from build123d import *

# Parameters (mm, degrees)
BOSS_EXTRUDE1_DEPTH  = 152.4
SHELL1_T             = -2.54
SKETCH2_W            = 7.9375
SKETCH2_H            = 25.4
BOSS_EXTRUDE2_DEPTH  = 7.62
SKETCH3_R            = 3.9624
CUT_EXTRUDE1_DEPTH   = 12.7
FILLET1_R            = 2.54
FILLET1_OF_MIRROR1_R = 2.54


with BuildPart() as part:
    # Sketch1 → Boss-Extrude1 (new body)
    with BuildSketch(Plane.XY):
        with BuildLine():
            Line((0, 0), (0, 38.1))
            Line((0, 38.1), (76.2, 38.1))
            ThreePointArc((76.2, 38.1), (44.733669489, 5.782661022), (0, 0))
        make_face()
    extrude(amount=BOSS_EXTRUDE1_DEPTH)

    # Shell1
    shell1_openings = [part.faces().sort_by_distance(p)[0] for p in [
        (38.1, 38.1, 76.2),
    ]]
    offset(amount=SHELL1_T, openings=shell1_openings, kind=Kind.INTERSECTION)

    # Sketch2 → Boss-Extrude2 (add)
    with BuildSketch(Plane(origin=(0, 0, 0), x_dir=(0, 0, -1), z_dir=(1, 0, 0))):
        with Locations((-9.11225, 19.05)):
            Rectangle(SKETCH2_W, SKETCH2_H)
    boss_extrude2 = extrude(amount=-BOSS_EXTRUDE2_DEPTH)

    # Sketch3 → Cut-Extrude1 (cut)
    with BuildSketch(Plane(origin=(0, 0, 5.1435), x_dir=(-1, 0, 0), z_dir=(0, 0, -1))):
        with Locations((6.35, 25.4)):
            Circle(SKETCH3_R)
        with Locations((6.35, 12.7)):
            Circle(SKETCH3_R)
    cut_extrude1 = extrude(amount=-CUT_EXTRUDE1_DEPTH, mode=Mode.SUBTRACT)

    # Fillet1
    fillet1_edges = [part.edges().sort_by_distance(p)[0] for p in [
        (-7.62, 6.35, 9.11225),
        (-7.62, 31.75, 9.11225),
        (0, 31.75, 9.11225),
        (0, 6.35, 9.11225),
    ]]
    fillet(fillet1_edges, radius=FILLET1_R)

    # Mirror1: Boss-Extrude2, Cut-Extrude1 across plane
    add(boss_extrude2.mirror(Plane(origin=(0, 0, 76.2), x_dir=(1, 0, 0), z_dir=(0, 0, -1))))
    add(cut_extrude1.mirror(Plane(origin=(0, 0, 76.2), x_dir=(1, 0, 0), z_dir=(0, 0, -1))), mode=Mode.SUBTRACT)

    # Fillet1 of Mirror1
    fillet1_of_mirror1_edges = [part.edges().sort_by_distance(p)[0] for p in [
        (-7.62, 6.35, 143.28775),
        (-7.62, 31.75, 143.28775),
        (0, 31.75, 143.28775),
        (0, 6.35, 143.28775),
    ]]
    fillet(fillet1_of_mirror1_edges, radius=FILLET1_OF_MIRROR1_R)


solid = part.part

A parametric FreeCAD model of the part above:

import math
import FreeCAD as App
import Part
import Sketcher

V = App.Vector
Q = App.Units.Quantity


def edges_at(feature, points):
    """Names of the edges that pass closest to the given points."""
    edges = feature.Shape.Edges
    near = lambda p: min(range(len(edges)), key=lambda i: edges[i].distToShape(Part.Vertex(*p))[0])
    return sorted({f"Edge{near(p) + 1}" for p in points})


def faces_at(feature, points):
    """Names of the faces that lie closest to the given points."""
    faces = feature.Shape.Faces
    near = lambda p: min(range(len(faces)), key=lambda i: faces[i].distToShape(Part.Vertex(*p))[0])
    return sorted({f"Face{near(p) + 1}" for p in points})


def add_polygon(sketch, points):
    """Adds a closed chain of lines whose ends are joined by coincident constraints."""
    first, n = sketch.GeometryCount, len(points)
    for a, b in zip(points, points[1:] + points[:1]):
        sketch.addGeometry(Part.LineSegment(App.Vector(*a, 0), App.Vector(*b, 0)), False)
    for i in range(n):
        sketch.addConstraint(Sketcher.Constraint("Coincident", first + i, 2, first + (i + 1) % n, 1))

doc = App.newDocument("Part")
body = doc.addObject("PartDesign::Body", "Body")

# Sketch on XY plane
sketch1 = body.newObject("Sketcher::SketchObject", "Sketch")
sketch1.AttachmentSupport = (doc.getObject("XY_Plane"), [""])
sketch1.MapMode = "FlatFace"
sketch1.addGeometry([
    Part.LineSegment(V(0, 38, 0), V(0, 0, 0)),
    Part.ArcOfCircle(Part.Circle(V(14, 67, 0), V(0, 0, 1), 69), math.radians(-102), math.radians(-25)),
    Part.LineSegment(V(76, 38, 0), V(0, 38, 0)),
], False)
sketch1.addConstraint([
    Sketcher.Constraint("Coincident", 0, 2, 1, 1),
    Sketcher.Constraint("Coincident", 1, 2, 2, 1),
    Sketcher.Constraint("Coincident", 2, 2, 0, 1),
    Sketcher.Constraint("Vertical", 0),
    Sketcher.Constraint("Horizontal", 2),
    Sketcher.Constraint("Coincident", 0, 2, -1, 1),
    Sketcher.Constraint("Radius", 1, Q("2.7 in")),
    Sketcher.Constraint("DistanceX", 2, 2, 2, 1, Q("3 in")),
    Sketcher.Constraint("DistanceY", 0, 2, 0, 1, Q("1.5 in")),
])
pad1 = body.newObject("PartDesign::Pad", "Pad")
pad1.Profile = sketch1
pad1.Length = Q("6 in")
doc.recompute()

thickness = body.newObject("PartDesign::Thickness", "Thickness")
thickness.Base = (pad1, faces_at(pad1, [(38.1, 38.1, 76.2)]))
thickness.Value = Q("0.1 in")
thickness.Reversed = True
thickness.Join = "Intersection"

# Sketch on YZ plane
sketch2 = body.newObject("Sketcher::SketchObject", "Sketch001")
sketch2.AttachmentSupport = (doc.getObject("YZ_Plane"), [""])
sketch2.MapMode = "FlatFace"
add_polygon(sketch2, [(32, 13), (6, 13), (6, 5), (32, 5)])  # lines 0-3
sketch2.addConstraint([
    Sketcher.Constraint("Horizontal", 0),
    Sketcher.Constraint("Vertical", 1),
    Sketcher.Constraint("Horizontal", 2),
    Sketcher.Constraint("Vertical", 3),
    Sketcher.Constraint("DistanceX", 0, 2, 0, 1, Q("1 in")),
    Sketcher.Constraint("DistanceY", 1, 2, 1, 1, Q("0.3125 in")),
    Sketcher.Constraint("DistanceX", -1, 1, 0, 2, Q("0.25 in")),
    Sketcher.Constraint("DistanceY", -1, 1, 0, 2, Q("0.515 in")),
])
pad2 = body.newObject("PartDesign::Pad", "Pad001")
pad2.Profile = sketch2
pad2.Length = Q("0.3 in")
pad2.Reversed = True

# Sketch on XY plane
sketch3 = body.newObject("Sketcher::SketchObject", "Sketch002")
sketch3.AttachmentSupport = (doc.getObject("XY_Plane"), [""])
sketch3.MapMode = "FlatFace"
sketch3.AttachmentOffset = App.Placement(V(0, 0, 0.2025 * 25.4), App.Rotation())
sketch3.addGeometry([
    Part.Circle(V(-6.3, 25.4, 0), V(0, 0, 1), 4),
    Part.Circle(V(-6.3, 12.7, 0), V(0, 0, 1), 4),
], False)
sketch3.addConstraint([
    Sketcher.Constraint("Equal", 0, 1),
    Sketcher.Constraint("Vertical", 0, 3, 1, 3),
    Sketcher.Constraint("Diameter", 0, Q("0.312 in")),
    Sketcher.Constraint("DistanceY", -1, 1, 0, 3, Q("1 in")),
    Sketcher.Constraint("DistanceY", -1, 1, 1, 3, Q("0.5 in")),
    Sketcher.Constraint("DistanceX", 0, 3, -1, 1, Q("0.25 in")),
])
pocket1 = body.newObject("PartDesign::Pocket", "Pocket")
pocket1.Profile = sketch3
pocket1.Length = Q("0.5 in")
pocket1.Reversed = True
doc.recompute()

fillet = body.newObject("PartDesign::Fillet", "Fillet")
fillet.Base = (pocket1, edges_at(pocket1, [
    (-7.62, 6.35, 9.112),
    (-7.62, 31.75, 9.112),
    (0, 31.75, 9.112),
    (0, 6.35, 9.112),
]))
fillet.Radius = Q("0.1 in")
doc.recompute()

datumplane = body.newObject("PartDesign::Plane", "DatumPlane")
datumplane.AttachmentSupport = (doc.getObject("XY_Plane"), [""])
datumplane.MapMode = "FlatFace"
datumplane.AttachmentOffset = App.Placement(V(0, 0, 3 * 25.4), App.Rotation())
mirrored = body.newObject("PartDesign::Mirrored", "Mirrored")
mirrored.Originals = [pad2, pocket1]
mirrored.MirrorPlane = (datumplane, [""])
body.Tip = mirrored
doc.recompute()

fillet2 = body.newObject("PartDesign::Fillet", "Fillet001")
fillet2.Base = (mirrored, edges_at(mirrored, [
    (-7.62, 6.35, 143.288),
    (-7.62, 31.75, 143.288),
    (0, 31.75, 143.288),
    (0, 6.35, 143.288),
]))
fillet2.Radius = Q("0.1 in")

doc.recompute()
